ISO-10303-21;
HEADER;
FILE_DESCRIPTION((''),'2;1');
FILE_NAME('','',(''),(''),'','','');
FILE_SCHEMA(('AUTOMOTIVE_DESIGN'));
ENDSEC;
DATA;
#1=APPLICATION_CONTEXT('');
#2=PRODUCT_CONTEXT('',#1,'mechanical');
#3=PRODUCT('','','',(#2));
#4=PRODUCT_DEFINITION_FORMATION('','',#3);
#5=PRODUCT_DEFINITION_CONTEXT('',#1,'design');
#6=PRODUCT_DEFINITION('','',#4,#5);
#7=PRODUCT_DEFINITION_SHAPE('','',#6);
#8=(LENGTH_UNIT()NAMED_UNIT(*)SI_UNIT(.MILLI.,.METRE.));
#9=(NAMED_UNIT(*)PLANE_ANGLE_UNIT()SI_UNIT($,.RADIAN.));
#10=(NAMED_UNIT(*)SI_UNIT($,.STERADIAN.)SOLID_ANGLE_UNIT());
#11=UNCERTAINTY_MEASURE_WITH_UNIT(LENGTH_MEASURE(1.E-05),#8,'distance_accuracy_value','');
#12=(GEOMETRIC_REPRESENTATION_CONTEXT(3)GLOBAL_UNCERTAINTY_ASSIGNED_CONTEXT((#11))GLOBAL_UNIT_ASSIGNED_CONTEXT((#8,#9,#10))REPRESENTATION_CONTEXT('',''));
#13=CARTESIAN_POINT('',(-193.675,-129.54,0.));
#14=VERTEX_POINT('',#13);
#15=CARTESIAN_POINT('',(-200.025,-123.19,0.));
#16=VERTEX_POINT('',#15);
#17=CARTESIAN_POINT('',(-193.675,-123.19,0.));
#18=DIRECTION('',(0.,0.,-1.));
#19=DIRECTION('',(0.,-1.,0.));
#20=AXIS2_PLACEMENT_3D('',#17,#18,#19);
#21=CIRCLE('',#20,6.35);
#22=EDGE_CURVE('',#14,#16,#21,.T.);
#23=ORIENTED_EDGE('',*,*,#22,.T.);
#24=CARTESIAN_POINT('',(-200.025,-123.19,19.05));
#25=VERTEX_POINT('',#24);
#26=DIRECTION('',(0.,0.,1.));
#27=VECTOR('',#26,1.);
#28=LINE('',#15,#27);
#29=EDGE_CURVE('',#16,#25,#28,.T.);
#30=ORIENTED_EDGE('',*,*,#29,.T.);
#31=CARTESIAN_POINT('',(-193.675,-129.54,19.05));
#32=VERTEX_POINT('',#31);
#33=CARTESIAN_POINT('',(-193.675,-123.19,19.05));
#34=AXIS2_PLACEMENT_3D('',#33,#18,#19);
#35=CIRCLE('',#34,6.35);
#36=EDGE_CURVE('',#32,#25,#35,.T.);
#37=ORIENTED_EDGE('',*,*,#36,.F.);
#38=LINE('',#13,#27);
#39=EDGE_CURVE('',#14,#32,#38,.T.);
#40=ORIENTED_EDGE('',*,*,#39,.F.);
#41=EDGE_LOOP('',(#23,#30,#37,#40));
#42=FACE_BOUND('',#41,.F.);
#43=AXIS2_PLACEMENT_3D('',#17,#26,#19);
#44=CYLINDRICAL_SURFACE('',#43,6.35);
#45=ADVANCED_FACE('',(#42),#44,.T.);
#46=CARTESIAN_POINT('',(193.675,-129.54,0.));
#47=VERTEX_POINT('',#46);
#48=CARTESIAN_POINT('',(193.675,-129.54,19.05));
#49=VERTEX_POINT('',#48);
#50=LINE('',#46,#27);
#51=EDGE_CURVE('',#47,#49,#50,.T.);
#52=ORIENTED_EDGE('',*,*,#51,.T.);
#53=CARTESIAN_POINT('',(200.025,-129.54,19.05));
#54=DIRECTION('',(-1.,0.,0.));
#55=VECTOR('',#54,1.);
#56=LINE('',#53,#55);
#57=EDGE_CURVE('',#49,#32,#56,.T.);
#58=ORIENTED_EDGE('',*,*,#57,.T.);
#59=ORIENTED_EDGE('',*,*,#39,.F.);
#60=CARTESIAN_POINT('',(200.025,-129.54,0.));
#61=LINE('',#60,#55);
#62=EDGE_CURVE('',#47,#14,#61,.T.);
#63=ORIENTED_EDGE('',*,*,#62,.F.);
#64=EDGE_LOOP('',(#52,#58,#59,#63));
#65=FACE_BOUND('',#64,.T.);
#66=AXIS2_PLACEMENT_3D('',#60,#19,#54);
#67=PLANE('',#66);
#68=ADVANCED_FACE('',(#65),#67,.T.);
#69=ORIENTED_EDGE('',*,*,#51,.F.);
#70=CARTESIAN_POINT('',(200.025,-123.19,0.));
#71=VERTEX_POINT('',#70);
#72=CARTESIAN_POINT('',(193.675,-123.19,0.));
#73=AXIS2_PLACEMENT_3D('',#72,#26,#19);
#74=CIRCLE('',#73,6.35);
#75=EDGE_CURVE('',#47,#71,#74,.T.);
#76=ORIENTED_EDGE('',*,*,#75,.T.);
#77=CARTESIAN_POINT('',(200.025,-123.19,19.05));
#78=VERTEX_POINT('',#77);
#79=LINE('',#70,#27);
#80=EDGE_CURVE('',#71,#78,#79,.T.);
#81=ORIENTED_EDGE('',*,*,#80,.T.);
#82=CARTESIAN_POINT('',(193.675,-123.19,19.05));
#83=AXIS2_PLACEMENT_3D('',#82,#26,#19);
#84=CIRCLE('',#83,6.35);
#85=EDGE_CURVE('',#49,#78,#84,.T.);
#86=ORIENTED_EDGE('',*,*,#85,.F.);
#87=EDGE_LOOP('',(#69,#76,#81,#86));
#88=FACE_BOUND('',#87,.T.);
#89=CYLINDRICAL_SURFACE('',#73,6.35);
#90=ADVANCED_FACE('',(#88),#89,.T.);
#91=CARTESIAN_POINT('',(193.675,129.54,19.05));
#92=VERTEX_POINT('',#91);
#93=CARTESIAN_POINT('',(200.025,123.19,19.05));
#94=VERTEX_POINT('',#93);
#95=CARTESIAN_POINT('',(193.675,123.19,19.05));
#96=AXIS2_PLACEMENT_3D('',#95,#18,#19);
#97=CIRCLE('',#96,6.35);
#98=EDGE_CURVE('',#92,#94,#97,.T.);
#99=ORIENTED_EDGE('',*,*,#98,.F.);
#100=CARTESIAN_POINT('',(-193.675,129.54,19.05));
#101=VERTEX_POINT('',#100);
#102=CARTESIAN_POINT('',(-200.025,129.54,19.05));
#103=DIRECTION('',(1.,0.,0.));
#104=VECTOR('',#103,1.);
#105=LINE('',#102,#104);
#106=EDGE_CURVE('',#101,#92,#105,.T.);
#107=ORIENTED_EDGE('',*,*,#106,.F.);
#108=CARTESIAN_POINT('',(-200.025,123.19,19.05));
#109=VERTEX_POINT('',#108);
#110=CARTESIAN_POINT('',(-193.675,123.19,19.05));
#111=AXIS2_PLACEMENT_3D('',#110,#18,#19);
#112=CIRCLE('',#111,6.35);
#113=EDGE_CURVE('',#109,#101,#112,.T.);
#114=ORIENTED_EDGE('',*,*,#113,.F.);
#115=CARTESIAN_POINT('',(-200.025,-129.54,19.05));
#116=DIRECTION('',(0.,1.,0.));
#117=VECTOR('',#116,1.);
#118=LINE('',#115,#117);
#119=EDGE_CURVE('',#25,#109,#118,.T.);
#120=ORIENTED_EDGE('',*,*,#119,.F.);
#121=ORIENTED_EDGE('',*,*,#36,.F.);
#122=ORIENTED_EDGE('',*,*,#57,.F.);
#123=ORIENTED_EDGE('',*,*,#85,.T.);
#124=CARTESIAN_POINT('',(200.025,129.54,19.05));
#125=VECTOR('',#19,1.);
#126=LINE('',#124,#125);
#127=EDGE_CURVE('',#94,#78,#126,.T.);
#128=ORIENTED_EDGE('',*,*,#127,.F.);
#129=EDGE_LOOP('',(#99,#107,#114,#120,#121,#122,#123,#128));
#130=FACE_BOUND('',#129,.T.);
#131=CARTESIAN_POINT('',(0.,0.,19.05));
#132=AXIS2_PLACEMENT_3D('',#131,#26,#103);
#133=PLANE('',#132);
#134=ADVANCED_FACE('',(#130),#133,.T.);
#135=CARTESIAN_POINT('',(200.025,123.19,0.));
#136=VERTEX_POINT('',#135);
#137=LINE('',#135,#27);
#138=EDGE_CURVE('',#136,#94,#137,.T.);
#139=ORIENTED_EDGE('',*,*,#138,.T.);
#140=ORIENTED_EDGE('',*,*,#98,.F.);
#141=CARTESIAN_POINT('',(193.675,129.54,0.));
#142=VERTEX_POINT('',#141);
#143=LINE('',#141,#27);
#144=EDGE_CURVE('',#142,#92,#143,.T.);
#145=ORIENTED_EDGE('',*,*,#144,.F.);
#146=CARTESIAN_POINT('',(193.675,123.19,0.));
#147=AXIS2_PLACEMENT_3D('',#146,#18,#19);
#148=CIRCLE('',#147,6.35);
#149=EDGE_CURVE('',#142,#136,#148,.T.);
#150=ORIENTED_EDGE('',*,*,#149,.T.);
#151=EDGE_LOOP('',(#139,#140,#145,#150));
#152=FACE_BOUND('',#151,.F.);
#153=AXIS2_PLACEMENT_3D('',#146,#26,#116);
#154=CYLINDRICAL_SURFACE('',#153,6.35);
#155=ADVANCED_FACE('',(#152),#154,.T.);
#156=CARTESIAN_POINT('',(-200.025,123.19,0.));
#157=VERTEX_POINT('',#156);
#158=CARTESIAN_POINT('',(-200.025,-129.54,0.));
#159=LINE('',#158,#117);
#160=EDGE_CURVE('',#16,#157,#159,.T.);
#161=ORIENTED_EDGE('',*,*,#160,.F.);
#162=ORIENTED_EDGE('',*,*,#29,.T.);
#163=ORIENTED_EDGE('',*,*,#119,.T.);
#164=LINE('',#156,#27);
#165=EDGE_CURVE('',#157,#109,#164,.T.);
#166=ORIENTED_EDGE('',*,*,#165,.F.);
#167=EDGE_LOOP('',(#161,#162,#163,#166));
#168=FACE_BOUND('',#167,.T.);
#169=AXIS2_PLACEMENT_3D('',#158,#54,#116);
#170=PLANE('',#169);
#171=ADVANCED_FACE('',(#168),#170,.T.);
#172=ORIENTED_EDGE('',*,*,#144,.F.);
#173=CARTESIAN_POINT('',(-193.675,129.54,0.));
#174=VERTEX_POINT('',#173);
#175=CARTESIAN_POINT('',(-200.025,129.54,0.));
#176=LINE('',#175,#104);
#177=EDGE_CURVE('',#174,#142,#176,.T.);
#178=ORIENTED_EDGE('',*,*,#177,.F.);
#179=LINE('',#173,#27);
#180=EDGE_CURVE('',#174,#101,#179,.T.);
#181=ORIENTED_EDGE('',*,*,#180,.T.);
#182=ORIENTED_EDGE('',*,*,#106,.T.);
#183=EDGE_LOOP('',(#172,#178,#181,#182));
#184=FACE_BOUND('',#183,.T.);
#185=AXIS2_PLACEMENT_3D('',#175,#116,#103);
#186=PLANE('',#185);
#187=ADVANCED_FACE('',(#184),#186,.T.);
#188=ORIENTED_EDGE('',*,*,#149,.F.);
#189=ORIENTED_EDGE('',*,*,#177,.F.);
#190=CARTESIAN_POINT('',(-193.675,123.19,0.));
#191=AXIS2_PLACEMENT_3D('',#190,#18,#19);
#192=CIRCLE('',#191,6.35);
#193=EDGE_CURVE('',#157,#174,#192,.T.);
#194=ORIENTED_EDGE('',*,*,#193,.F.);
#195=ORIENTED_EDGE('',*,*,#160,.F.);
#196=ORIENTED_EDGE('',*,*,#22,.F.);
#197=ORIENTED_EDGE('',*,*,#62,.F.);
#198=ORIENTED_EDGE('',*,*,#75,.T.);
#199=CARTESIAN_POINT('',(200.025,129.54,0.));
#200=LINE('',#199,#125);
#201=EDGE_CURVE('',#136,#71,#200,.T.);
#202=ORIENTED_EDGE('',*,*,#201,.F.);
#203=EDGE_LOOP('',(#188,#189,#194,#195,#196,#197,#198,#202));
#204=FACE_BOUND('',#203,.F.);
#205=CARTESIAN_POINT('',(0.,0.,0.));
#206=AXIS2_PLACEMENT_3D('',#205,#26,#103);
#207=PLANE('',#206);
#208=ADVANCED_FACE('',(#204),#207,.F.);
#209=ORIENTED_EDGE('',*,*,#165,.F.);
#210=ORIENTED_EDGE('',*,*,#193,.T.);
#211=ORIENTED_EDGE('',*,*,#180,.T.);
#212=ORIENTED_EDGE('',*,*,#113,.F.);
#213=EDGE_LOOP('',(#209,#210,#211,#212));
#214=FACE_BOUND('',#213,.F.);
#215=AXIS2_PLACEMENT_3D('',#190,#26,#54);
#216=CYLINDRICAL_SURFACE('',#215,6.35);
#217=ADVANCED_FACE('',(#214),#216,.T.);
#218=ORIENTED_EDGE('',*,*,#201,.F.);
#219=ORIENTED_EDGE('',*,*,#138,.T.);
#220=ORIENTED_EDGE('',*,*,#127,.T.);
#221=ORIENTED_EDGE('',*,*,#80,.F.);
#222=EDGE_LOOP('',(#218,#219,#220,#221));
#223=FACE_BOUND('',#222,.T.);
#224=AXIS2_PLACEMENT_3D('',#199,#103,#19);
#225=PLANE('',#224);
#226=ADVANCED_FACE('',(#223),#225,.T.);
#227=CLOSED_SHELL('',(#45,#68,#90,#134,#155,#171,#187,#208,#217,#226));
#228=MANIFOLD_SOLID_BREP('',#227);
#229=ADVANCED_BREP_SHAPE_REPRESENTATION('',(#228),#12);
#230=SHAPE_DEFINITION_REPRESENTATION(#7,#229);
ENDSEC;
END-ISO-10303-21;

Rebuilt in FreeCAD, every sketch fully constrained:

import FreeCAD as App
import Part
import Sketcher
Q = App.Units.Quantity


def edges_at(feature, points):
    """Names of the edges that pass closest to the given points."""
    edges = feature.Shape.Edges
    near = lambda p: min(range(len(edges)), key=lambda i: edges[i].distToShape(Part.Vertex(*p))[0])
    return sorted({f"Edge{near(p) + 1}" for p in points})

doc = App.newDocument("Part")
body = doc.addObject("PartDesign::Body", "Body")

sketch1 = doc.addObject("Sketcher::SketchObject", "Sketch")
body.addObject(sketch1)
sketch1.AttachmentSupport = (doc.XY_Plane, [""])
sketch1.MapMode = "FlatFace"
sketch1.addGeometry([
    Part.LineSegment(App.Vector(-200, -130, 0), App.Vector(200, -130, 0)),
    Part.LineSegment(App.Vector(200, -130, 0), App.Vector(200, 130, 0)),
    Part.LineSegment(App.Vector(200, 130, 0), App.Vector(-200, 130, 0)),
    Part.LineSegment(App.Vector(-200, 130, 0), App.Vector(-200, -130, 0)),
], False)
sketch1.addConstraint([
    Sketcher.Constraint("Coincident", 0, 2, 1, 1),
    Sketcher.Constraint("Coincident", 1, 2, 2, 1),
    Sketcher.Constraint("Coincident", 2, 2, 3, 1),
    Sketcher.Constraint("Coincident", 3, 2, 0, 1),
    Sketcher.Constraint("Horizontal", 0),
    Sketcher.Constraint("Vertical", 1),
    Sketcher.Constraint("Horizontal", 2),
    Sketcher.Constraint("Vertical", 3),
    Sketcher.Constraint("Symmetric", 0, 2, 2, 2, -1, 1),
    Sketcher.Constraint("DistanceY", 1, 1, 1, 2, Q("10.2 in")),
    Sketcher.Constraint("DistanceX", 0, 1, 0, 2, Q("15.75 in")),
])
pad1 = doc.addObject("PartDesign::Pad", "Pad")
body.addObject(pad1)
pad1.Profile = sketch1
pad1.Length = Q("0.75 in")
doc.recompute()

fillet = doc.addObject("PartDesign::Fillet", "Fillet")
body.addObject(fillet)
fillet.Base = (pad1, edges_at(pad1, [
    (-200.025, 129.54, 9.525),
    (200.025, 129.54, 9.525),
    (200.025, -129.54, 9.525),
    (-200.025, -129.54, 9.525),
]))
fillet.Radius = Q("0.25 in")

doc.recompute()
